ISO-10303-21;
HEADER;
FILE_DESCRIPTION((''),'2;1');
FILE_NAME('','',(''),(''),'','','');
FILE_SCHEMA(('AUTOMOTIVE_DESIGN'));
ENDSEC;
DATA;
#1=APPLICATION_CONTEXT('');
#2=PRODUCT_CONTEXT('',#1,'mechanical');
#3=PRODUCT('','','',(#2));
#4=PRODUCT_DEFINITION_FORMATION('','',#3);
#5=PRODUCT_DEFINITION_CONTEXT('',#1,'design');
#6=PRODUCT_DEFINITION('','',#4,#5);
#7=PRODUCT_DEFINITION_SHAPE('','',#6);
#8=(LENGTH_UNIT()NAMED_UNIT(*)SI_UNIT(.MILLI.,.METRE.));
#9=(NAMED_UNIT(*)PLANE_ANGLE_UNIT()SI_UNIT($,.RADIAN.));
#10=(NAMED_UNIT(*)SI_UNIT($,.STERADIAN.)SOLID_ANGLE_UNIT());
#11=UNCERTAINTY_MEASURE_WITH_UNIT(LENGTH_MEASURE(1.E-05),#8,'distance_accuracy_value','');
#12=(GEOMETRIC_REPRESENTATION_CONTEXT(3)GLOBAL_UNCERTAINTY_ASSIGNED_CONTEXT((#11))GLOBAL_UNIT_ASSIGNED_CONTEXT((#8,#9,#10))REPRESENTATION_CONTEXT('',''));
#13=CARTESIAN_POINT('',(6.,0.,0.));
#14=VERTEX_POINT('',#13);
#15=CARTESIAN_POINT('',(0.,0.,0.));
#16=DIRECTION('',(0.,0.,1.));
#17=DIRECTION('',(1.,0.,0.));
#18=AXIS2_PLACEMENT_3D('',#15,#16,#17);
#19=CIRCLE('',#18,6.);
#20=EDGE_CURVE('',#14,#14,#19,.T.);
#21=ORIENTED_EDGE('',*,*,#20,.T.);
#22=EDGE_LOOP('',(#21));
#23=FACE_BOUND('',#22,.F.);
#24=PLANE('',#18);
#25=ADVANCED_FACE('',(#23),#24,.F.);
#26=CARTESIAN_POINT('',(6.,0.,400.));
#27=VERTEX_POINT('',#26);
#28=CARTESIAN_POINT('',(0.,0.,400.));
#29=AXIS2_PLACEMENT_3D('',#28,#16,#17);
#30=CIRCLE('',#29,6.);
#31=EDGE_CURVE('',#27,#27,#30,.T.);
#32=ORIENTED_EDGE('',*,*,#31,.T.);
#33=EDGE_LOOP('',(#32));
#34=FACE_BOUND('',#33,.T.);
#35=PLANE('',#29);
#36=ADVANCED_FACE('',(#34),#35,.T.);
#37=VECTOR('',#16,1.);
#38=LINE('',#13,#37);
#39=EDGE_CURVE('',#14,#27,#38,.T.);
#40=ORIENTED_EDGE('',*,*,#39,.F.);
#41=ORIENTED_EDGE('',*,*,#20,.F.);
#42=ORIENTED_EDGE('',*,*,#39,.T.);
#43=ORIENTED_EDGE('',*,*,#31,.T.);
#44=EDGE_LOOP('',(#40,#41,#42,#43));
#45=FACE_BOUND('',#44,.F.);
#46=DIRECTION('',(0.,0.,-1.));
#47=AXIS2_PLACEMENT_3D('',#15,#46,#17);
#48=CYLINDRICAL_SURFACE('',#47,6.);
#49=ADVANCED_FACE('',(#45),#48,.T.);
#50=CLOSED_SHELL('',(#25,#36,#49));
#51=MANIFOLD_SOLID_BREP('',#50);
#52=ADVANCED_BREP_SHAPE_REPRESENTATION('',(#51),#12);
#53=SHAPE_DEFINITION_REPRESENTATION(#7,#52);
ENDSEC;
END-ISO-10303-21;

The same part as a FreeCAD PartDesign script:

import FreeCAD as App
import Part
import Sketcher

V = App.Vector
Q = App.Units.Quantity

doc = App.newDocument("Part")
body = doc.addObject("PartDesign::Body", "Body")

# Sketch on XY plane
sketch1 = body.newObject("Sketcher::SketchObject", "Sketch")
sketch1.AttachmentSupport = (doc.getObject("XY_Plane"), [""])
sketch1.MapMode = "FlatFace"
sketch1.addGeometry(Part.Circle(V(0, 0, 0), V(0, 0, 1), 6), False)
sketch1.addConstraint(Sketcher.Constraint("Coincident", 0, 3, -1, 1))
sketch1.addConstraint(Sketcher.Constraint("Diameter", 0, Q("12 mm")))
pad1 = body.newObject("PartDesign::Pad", "Pad")
pad1.Profile = sketch1
pad1.Length = 400

doc.recompute()
